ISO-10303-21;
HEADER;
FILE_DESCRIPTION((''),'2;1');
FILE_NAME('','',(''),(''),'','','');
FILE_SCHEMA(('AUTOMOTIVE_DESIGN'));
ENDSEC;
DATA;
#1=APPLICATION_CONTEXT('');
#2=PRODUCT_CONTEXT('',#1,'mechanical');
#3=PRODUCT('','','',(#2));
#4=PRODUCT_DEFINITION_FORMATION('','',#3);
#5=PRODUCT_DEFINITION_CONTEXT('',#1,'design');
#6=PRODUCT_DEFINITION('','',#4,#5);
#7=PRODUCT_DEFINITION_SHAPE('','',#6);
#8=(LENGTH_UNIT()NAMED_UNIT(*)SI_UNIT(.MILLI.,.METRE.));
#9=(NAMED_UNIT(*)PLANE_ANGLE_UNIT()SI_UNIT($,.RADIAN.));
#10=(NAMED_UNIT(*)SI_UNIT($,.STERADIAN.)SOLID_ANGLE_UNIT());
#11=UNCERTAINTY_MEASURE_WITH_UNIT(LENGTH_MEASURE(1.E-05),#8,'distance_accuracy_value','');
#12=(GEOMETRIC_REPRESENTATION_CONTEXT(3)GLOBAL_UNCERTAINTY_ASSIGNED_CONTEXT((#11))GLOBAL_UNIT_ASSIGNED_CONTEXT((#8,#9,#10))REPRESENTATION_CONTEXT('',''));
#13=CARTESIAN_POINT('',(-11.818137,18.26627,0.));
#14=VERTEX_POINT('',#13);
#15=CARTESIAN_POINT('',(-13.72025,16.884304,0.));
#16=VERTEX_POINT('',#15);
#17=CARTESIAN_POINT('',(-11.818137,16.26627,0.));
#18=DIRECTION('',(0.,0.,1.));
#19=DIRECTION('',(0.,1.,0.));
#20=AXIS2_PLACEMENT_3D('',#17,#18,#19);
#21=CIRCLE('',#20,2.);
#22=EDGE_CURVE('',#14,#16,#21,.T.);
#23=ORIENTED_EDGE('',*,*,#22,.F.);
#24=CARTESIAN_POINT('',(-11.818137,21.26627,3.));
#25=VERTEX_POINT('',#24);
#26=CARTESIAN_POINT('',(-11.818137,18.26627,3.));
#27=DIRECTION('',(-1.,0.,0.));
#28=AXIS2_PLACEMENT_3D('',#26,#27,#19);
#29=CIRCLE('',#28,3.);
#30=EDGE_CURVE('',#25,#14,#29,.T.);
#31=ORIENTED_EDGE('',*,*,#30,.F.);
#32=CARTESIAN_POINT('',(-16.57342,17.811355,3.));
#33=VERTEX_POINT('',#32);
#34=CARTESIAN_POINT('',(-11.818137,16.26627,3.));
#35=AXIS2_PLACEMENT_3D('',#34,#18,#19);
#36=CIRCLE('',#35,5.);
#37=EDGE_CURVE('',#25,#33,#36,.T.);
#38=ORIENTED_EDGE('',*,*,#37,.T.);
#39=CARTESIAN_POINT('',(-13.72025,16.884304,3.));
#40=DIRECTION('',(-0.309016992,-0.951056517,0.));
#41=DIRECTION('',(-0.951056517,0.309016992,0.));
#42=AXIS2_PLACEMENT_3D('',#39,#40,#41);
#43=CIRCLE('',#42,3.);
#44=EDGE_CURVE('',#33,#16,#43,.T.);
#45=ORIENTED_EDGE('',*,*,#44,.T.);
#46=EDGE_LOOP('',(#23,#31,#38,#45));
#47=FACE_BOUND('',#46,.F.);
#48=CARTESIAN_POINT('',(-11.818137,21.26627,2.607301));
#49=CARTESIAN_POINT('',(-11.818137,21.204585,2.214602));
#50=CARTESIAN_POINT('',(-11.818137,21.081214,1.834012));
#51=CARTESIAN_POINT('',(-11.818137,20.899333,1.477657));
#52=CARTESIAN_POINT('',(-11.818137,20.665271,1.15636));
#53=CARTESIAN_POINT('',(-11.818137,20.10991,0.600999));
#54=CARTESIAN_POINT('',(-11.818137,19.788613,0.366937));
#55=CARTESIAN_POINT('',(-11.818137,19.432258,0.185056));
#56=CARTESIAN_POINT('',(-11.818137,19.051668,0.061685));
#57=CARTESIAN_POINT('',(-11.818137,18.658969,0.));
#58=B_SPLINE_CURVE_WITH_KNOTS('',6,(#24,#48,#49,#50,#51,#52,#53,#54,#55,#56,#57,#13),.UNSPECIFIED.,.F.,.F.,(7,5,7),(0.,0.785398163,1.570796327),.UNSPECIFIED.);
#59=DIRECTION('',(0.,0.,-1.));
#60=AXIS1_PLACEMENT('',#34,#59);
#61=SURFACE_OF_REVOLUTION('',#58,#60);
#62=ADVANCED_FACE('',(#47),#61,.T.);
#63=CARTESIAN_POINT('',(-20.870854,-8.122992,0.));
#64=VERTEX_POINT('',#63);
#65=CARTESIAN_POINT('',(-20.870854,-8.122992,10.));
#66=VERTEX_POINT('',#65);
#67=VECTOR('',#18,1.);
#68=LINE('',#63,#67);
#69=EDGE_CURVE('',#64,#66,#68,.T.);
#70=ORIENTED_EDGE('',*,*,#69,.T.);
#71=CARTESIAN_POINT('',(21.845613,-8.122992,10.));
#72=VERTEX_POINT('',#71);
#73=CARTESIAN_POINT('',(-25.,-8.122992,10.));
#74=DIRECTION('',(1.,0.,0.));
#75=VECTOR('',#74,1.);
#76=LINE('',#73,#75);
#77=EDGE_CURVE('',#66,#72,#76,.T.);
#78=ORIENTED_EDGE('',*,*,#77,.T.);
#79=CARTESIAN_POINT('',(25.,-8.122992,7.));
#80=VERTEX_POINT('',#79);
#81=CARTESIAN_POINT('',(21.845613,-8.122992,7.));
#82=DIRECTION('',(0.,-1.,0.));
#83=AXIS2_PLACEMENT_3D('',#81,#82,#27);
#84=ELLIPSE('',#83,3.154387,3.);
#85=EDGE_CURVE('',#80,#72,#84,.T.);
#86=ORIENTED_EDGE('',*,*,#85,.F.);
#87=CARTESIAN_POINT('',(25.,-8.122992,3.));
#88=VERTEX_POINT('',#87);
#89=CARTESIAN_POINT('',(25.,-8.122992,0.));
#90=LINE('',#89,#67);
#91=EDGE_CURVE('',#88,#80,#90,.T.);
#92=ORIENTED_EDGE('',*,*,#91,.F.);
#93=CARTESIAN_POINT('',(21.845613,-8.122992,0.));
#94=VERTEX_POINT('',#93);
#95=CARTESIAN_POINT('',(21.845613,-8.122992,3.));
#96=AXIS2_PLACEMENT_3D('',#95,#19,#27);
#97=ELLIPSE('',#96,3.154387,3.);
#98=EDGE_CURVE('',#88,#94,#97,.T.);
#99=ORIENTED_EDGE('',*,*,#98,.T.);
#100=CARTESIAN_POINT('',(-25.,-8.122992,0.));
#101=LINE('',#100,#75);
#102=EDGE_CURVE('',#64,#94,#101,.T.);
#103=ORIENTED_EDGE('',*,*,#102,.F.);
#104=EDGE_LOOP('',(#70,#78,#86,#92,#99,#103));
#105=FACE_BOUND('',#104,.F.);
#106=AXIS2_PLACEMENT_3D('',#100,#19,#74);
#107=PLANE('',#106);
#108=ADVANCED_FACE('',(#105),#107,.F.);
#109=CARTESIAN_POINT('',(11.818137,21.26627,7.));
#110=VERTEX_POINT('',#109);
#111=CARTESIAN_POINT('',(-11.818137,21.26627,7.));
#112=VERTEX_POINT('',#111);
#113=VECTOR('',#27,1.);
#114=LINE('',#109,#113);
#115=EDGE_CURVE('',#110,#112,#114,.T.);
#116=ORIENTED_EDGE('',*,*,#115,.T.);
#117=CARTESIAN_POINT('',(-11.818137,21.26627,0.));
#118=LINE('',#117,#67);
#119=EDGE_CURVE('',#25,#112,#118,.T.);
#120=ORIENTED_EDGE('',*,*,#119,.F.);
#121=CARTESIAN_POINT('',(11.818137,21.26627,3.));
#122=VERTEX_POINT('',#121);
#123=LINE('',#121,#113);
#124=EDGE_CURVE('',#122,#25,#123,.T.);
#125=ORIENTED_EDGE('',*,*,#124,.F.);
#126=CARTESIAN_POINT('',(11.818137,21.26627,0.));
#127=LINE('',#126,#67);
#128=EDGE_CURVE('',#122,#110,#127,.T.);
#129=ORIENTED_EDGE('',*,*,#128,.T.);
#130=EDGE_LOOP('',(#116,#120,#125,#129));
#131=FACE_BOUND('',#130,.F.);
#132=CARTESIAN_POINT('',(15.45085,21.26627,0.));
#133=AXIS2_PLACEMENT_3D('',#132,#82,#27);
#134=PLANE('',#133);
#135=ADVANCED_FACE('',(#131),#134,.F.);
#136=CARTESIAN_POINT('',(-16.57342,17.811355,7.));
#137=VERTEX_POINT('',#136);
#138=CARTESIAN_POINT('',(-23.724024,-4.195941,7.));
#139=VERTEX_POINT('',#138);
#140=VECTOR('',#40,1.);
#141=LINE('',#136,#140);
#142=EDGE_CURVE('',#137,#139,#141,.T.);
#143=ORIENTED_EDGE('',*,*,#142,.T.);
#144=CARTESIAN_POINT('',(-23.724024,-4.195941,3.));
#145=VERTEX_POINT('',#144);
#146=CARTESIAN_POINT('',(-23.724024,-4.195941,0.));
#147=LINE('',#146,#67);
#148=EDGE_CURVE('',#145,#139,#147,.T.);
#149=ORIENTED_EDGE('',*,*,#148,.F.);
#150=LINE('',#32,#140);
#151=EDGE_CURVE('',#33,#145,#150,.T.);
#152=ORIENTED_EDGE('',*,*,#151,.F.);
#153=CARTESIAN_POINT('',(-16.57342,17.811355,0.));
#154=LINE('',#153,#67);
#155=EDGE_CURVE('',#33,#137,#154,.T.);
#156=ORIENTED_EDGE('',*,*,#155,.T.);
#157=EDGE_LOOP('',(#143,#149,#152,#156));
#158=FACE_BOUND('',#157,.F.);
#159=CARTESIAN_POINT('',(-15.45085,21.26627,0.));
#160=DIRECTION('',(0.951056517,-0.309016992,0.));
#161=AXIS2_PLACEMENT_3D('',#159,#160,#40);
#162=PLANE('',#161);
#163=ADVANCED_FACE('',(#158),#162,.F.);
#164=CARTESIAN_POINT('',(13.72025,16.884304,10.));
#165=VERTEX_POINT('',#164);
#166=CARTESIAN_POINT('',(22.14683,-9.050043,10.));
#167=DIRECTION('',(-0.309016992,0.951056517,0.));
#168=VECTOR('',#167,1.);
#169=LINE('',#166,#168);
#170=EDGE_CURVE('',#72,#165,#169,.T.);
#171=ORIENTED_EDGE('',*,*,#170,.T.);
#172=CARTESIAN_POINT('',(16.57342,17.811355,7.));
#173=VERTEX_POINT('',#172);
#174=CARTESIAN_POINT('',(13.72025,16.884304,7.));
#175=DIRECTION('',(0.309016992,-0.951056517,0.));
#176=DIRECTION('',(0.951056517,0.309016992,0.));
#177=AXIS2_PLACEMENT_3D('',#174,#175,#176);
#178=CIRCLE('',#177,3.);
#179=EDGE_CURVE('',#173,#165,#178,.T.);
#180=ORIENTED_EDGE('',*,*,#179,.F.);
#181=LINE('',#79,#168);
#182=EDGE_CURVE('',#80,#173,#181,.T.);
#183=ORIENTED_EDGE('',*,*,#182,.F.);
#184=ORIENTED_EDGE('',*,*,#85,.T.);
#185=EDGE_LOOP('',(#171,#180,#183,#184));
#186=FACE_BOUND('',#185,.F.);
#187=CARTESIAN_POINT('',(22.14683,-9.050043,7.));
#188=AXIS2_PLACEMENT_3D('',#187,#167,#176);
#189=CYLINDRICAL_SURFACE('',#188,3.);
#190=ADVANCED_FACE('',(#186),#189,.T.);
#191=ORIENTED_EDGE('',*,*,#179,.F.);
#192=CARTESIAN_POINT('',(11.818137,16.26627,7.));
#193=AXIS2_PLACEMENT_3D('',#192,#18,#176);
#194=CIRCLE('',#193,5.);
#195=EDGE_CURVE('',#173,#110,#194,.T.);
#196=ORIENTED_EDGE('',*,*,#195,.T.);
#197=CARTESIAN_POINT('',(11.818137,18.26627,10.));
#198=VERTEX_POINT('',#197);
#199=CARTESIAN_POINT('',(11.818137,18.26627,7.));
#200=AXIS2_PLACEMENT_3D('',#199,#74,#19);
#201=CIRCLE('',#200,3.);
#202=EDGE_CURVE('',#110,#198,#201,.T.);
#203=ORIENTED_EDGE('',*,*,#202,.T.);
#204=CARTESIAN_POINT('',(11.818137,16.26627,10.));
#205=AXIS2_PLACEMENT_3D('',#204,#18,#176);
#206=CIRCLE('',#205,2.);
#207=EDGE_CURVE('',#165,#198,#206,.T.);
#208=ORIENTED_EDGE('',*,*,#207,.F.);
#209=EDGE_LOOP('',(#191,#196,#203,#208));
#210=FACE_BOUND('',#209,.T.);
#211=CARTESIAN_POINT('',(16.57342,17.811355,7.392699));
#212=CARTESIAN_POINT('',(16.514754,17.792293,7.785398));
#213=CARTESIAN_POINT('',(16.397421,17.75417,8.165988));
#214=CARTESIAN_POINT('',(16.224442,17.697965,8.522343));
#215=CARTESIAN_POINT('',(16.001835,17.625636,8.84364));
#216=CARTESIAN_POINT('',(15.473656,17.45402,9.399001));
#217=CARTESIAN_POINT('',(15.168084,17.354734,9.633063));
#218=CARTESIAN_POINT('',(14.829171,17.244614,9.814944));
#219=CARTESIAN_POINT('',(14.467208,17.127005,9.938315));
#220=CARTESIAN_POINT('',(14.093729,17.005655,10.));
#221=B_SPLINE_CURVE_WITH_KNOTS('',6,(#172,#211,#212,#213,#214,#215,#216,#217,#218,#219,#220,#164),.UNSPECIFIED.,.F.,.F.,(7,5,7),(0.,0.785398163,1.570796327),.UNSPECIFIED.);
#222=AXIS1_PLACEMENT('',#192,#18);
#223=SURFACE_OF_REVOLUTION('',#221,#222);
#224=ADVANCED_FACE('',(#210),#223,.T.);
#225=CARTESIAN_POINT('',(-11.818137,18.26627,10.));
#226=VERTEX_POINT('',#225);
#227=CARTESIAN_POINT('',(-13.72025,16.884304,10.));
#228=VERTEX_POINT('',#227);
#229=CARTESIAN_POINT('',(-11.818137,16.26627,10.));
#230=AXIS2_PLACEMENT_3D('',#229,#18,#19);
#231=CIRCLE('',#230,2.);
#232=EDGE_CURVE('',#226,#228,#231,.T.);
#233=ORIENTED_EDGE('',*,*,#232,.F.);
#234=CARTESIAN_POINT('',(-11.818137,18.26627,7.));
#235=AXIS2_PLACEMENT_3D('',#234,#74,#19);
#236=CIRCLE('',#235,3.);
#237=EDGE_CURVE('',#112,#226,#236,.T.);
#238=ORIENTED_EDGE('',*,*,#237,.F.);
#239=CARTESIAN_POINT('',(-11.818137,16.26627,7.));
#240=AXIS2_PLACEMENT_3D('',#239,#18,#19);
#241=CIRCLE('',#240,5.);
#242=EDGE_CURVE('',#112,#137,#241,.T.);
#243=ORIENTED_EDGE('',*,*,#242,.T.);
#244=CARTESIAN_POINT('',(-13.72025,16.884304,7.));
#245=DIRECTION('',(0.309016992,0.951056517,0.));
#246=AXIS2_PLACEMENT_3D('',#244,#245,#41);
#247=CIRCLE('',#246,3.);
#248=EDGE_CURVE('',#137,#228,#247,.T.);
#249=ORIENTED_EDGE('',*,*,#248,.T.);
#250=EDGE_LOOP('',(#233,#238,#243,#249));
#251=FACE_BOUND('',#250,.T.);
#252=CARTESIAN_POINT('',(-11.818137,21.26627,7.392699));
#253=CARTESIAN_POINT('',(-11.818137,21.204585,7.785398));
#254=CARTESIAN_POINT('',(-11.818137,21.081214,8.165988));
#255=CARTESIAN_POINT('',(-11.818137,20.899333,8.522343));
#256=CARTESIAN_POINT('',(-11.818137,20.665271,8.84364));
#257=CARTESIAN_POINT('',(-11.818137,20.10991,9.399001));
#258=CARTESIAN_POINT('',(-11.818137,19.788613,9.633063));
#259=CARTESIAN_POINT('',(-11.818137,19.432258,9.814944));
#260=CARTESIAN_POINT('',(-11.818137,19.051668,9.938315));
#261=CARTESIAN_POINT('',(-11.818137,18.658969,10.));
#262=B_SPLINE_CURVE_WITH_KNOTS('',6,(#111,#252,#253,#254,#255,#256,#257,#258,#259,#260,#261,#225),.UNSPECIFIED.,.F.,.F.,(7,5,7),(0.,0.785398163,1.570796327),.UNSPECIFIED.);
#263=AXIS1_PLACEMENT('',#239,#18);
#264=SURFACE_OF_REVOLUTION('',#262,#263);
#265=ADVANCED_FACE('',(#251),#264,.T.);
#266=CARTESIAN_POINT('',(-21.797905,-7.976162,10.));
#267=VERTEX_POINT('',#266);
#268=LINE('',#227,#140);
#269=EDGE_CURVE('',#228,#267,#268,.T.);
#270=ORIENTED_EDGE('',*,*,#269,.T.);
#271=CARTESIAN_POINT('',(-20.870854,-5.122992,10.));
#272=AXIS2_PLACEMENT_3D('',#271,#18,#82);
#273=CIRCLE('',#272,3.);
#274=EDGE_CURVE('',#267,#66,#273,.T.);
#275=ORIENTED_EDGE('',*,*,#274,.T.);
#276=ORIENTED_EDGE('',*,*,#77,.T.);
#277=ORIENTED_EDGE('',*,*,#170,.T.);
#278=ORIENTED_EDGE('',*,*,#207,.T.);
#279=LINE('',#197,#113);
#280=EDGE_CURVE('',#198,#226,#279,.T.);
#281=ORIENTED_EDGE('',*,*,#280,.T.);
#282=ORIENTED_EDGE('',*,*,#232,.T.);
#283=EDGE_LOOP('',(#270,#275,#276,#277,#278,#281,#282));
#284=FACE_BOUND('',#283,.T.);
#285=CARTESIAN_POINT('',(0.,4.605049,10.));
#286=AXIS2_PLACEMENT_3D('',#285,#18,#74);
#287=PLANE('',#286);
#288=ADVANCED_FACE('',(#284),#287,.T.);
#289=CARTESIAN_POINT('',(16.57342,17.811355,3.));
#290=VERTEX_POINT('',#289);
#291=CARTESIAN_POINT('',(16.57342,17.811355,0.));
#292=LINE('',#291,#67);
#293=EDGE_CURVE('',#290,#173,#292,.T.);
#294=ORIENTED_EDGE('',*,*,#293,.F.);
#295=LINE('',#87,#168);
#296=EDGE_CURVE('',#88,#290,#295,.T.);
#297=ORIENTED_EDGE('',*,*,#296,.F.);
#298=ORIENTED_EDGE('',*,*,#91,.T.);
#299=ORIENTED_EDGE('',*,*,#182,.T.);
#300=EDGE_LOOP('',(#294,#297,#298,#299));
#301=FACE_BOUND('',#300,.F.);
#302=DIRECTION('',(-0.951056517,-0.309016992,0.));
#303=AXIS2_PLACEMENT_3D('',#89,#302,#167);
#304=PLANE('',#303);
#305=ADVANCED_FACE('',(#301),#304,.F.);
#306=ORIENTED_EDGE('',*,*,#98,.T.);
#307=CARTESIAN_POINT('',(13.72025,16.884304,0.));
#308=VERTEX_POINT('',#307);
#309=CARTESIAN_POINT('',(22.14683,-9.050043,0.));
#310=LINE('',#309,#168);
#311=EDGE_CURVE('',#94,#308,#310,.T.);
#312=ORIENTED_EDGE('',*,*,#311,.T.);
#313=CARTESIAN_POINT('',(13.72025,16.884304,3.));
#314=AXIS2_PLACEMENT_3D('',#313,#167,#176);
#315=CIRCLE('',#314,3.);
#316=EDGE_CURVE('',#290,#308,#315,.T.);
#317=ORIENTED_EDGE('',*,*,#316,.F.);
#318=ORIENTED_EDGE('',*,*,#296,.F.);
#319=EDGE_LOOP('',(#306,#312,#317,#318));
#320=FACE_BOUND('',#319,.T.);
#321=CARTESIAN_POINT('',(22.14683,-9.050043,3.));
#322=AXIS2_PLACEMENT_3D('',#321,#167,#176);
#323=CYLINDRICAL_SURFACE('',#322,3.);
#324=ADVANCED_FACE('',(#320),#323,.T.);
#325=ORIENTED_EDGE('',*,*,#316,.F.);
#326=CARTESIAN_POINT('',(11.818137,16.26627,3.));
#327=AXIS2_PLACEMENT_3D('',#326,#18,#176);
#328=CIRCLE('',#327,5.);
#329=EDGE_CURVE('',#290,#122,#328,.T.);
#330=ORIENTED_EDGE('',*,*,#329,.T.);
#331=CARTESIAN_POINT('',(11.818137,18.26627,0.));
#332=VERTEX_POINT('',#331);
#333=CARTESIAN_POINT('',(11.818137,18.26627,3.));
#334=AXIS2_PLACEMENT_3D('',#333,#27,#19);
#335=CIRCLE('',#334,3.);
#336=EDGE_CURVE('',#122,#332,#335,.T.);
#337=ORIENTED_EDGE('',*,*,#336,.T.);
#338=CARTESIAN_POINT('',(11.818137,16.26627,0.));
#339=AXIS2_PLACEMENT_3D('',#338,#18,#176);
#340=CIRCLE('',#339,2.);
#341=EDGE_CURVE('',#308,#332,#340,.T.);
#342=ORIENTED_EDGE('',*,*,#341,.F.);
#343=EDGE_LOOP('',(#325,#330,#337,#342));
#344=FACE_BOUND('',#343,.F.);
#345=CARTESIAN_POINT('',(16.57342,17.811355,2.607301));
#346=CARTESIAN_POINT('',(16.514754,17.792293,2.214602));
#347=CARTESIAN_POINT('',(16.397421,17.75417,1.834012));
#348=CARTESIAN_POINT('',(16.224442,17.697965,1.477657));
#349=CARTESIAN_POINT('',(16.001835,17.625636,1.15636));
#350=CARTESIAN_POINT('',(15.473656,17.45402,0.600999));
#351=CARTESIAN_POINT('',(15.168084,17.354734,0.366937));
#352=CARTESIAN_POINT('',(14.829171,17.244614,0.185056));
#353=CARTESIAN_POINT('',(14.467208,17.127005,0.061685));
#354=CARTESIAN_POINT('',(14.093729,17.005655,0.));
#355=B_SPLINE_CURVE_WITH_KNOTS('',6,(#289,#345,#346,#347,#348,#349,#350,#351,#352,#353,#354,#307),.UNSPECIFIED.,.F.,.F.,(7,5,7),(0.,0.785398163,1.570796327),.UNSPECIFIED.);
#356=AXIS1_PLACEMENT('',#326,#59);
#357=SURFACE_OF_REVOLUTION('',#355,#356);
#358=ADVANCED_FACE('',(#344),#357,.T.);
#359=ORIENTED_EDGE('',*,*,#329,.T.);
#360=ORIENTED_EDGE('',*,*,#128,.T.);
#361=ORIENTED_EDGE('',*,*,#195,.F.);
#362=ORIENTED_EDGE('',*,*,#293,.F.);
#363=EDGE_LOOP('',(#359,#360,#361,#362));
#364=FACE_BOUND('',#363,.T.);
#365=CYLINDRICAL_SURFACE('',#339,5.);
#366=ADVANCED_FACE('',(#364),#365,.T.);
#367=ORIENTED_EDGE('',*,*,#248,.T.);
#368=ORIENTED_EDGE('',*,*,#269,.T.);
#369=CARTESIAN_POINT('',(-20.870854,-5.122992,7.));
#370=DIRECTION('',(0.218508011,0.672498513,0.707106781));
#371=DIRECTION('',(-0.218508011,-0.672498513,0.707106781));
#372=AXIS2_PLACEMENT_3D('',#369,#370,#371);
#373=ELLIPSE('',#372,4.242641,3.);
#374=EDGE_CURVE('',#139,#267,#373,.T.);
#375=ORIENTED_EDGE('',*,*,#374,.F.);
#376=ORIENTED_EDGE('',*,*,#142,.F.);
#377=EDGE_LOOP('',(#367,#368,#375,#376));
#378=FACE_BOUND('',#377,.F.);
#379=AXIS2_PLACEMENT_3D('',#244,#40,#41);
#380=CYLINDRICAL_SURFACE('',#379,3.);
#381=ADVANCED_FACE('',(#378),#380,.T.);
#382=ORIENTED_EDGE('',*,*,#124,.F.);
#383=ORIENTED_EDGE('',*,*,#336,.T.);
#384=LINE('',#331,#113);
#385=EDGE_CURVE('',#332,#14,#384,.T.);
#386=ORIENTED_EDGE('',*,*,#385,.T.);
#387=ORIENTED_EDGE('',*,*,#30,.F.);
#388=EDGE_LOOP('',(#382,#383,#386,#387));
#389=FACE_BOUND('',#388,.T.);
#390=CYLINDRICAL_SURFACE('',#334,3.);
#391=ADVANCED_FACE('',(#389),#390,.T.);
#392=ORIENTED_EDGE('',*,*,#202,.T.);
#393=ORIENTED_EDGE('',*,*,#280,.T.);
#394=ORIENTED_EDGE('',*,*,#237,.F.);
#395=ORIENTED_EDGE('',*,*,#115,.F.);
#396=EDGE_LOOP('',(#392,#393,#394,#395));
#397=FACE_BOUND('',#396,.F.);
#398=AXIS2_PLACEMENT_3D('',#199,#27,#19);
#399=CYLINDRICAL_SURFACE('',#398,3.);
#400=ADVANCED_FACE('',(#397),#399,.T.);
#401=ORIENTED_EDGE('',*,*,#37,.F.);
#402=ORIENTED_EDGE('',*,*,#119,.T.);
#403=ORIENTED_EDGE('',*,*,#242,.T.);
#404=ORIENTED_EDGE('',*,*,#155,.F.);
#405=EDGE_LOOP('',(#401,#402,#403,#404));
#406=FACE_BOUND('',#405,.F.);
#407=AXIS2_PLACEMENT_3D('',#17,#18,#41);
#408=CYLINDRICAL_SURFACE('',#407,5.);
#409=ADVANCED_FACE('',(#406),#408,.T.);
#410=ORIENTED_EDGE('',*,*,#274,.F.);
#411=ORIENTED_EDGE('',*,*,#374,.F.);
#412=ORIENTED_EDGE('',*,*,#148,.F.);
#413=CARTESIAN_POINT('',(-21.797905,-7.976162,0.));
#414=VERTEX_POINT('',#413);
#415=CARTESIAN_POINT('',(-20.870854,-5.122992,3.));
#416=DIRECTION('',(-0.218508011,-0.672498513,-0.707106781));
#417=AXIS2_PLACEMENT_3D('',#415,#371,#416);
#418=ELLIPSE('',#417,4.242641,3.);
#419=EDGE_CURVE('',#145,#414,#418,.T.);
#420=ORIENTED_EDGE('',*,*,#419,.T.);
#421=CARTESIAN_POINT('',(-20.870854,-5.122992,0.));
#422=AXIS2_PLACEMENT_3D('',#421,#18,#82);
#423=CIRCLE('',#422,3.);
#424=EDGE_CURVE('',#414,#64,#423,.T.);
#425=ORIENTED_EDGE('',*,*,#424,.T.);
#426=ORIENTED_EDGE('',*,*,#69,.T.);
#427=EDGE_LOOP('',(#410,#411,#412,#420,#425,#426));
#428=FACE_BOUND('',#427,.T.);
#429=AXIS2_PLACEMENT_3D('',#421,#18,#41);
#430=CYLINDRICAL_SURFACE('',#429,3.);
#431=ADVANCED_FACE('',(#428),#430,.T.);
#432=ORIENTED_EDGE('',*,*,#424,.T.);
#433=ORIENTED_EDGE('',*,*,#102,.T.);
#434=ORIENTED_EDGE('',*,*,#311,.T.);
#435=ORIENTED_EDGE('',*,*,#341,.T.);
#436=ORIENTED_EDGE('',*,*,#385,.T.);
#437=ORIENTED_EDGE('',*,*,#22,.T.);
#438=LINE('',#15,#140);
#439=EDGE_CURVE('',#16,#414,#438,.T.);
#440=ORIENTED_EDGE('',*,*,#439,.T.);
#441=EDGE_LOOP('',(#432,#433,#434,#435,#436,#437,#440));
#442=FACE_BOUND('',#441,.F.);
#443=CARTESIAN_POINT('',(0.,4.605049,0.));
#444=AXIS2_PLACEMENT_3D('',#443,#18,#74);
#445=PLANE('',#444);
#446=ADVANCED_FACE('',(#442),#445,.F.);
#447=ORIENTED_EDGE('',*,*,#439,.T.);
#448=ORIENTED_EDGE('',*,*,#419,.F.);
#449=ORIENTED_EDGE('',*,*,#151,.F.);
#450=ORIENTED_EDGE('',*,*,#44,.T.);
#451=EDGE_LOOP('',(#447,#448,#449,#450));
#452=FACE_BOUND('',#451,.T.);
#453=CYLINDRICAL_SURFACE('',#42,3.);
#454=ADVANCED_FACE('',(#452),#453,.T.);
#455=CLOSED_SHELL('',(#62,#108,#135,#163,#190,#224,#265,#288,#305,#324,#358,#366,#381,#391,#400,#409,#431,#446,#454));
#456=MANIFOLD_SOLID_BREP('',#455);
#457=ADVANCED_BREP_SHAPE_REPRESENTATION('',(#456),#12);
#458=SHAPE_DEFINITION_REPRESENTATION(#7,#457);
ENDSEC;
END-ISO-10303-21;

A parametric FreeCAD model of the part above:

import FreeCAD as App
import Part
import Sketcher
from FreeCAD import Vector
Q = App.Units.Quantity


def edges_at(feature, points):
    """Names of the edges that pass closest to the given points."""
    edges = feature.Shape.Edges
    near = lambda p: min(range(len(edges)), key=lambda i: edges[i].distToShape(Part.Vertex(*p))[0])
    return sorted({f"Edge{near(p) + 1}" for p in points})

doc = App.newDocument("Part")
body = doc.addObject("PartDesign::Body", "Body")

# Sketch on XY plane
sketch1 = doc.addObject("Sketcher::SketchObject", "Sketch")
body.addObject(sketch1)
sketch1.AttachmentSupport = (doc.XY_Plane, [""])
sketch1.MapMode = "FlatFace"
sketch1.addGeometry([
    Part.LineSegment(Vector(-15, 21, 0), Vector(-25, -8, 0)),
    Part.LineSegment(Vector(-25, -8, 0), Vector(25, -8, 0)),
    Part.LineSegment(Vector(25, -8, 0), Vector(15, 21, 0)),
    Part.LineSegment(Vector(15, 21, 0), Vector(-15, 21, 0)),
], False)
sketch1.addConstraint([
    Sketcher.Constraint("Coincident", 0, 2, 1, 1),
    Sketcher.Constraint("Coincident", 1, 2, 2, 1),
    Sketcher.Constraint("Coincident", 2, 2, 3, 1),
    Sketcher.Constraint("Coincident", 3, 2, 0, 1),
    Sketcher.Constraint("Horizontal", 1),
    Sketcher.Constraint("Horizontal", 3),
    Sketcher.Constraint("Equal", 0, 2),
    Sketcher.Constraint("DistanceX", 1, 1, 1, 2, Q("50 mm")),
    Sketcher.Constraint("Angle", 0, Q("-108 deg")),
    Sketcher.Constraint("DistanceX", 0, 2, -1, 1, Q("25 mm")),
    Sketcher.Constraint("DistanceX", 3, 2, 3, 1, Q("30.9017 mm")),
    Sketcher.Constraint("DistanceY", -1, 1, 2, 2, Q("21.26627 mm")),
])
pad1 = doc.addObject("PartDesign::Pad", "Pad")
body.addObject(pad1)
pad1.Profile = sketch1
pad1.Length = 10
doc.recompute()

fillet = doc.addObject("PartDesign::Fillet", "Fillet")
body.addObject(fillet)
fillet.Base = (pad1, edges_at(pad1, [(-15.451, 21.266, 5), (15.451, 21.266, 5)]))
fillet.Radius = 5
doc.recompute()

fillet2 = doc.addObject("PartDesign::Fillet", "Fillet001")
body.addObject(fillet2)
fillet2.Base = (fillet, edges_at(fillet, [
    (-20.787, 4.844, 0),
    (-16.573, 17.811, 5),
    (-25, -8.123, 5),
    (-20.787, 4.844, 10),
]))
fillet2.Radius = 3

doc.recompute()
